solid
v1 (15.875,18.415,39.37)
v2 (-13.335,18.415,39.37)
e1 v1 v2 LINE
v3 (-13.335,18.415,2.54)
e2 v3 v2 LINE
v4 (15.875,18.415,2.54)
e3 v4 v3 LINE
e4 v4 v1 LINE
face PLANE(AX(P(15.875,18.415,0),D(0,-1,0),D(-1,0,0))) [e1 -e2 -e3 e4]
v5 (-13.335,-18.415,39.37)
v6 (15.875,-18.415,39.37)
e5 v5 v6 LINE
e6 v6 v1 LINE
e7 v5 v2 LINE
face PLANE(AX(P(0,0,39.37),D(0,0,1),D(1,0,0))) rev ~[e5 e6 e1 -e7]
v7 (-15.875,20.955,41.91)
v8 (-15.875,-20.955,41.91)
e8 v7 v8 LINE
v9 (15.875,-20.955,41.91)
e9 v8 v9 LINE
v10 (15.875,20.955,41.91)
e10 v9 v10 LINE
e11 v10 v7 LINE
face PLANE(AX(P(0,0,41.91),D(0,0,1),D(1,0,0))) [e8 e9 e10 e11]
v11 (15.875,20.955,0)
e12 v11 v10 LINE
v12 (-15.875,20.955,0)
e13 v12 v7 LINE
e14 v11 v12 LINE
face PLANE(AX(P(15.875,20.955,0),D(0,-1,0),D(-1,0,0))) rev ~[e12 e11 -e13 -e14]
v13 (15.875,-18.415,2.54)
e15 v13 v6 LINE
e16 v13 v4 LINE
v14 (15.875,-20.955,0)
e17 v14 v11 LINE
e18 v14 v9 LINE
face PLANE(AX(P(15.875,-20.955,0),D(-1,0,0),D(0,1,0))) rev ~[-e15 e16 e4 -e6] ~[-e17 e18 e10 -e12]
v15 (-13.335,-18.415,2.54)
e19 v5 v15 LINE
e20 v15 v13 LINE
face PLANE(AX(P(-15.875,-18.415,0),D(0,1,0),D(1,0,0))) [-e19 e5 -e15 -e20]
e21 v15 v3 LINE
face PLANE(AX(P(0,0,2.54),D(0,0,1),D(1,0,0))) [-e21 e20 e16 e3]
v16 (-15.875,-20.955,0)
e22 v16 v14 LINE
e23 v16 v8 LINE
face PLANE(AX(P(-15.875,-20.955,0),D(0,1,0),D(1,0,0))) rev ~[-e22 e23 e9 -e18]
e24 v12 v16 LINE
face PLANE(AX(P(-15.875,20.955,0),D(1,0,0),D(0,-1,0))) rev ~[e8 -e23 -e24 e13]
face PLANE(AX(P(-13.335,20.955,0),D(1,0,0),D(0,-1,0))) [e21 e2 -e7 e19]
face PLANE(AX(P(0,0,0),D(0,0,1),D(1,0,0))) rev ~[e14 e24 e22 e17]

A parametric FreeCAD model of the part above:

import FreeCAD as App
import Part
import Sketcher

V = App.Vector
Q = App.Units.Quantity


def faces_at(feature, points):
    """Names of the faces that lie closest to the given points."""
    faces = feature.Shape.Faces
    near = lambda p: min(range(len(faces)), key=lambda i: faces[i].distToShape(Part.Vertex(*p))[0])
    return sorted({f"Face{near(p) + 1}" for p in points})

doc = App.newDocument("Part")
params = doc.addObject("Spreadsheet::Sheet", "Params")
for row, (alias, value) in enumerate([
    ("sketch1_width", "1.25 in"),
    ("sketch1_height", "1.65 in"),
    ("pad1_length", "1.65 in"),
    ("thickness_wall", "0.1 in"),
], start=1):
    params.set(f"A{row}", alias)
    params.set(f"B{row}", "=" + value)
    params.setAlias(f"B{row}", alias)

body = doc.addObject("PartDesign::Body", "Body")

sketch1 = body.newObject("Sketcher::SketchObject", "Sketch")
sketch1.AttachmentSupport = (doc.getObject("XY_Plane"), [""])
sketch1.MapMode = "FlatFace"
sketch1.addGeometry([
    Part.LineSegment(V(15.875, -20.955, 0), V(15.875, 20.955, 0)),
    Part.LineSegment(V(15.875, 20.955, 0), V(-15.875, 20.955, 0)),
    Part.LineSegment(V(-15.875, 20.955, 0), V(-15.875, -20.955, 0)),
    Part.LineSegment(V(-15.875, -20.955, 0), V(15.875, -20.955, 0)),
], False)
sketch1.addConstraint([
    Sketcher.Constraint("Coincident", 0, 2, 1, 1),
    Sketcher.Constraint("Coincident", 1, 2, 2, 1),
    Sketcher.Constraint("Coincident", 2, 2, 3, 1),
    Sketcher.Constraint("Coincident", 3, 2, 0, 1),
    Sketcher.Constraint("Vertical", 0),
    Sketcher.Constraint("Horizontal", 1),
    Sketcher.Constraint("Vertical", 2),
    Sketcher.Constraint("Horizontal", 3),
    Sketcher.Constraint("Symmetric", 0, 2, 2, 2, -1, 1),
    Sketcher.Constraint("DistanceX", 1, 2, 1, 1, Q("1.25 in")),
    Sketcher.Constraint("DistanceY", 0, 1, 0, 2, Q("1.65 in")),
])
sketch1.setExpression("Constraints[9]", "Params.sketch1_width")
sketch1.setExpression("Constraints[10]", "Params.sketch1_height")
pad1 = body.newObject("PartDesign::Pad", "Pad")
pad1.Profile = sketch1
pad1.setExpression("Length", "Params.pad1_length")
doc.recompute()

thickness = body.newObject("PartDesign::Thickness", "Thickness")
thickness.Base = (pad1, faces_at(pad1, [(15.875, 0, 20.955)]))
thickness.setExpression("Value", "Params.thickness_wall")
thickness.Reversed = True
thickness.Join = "Arc"

doc.recompute()
